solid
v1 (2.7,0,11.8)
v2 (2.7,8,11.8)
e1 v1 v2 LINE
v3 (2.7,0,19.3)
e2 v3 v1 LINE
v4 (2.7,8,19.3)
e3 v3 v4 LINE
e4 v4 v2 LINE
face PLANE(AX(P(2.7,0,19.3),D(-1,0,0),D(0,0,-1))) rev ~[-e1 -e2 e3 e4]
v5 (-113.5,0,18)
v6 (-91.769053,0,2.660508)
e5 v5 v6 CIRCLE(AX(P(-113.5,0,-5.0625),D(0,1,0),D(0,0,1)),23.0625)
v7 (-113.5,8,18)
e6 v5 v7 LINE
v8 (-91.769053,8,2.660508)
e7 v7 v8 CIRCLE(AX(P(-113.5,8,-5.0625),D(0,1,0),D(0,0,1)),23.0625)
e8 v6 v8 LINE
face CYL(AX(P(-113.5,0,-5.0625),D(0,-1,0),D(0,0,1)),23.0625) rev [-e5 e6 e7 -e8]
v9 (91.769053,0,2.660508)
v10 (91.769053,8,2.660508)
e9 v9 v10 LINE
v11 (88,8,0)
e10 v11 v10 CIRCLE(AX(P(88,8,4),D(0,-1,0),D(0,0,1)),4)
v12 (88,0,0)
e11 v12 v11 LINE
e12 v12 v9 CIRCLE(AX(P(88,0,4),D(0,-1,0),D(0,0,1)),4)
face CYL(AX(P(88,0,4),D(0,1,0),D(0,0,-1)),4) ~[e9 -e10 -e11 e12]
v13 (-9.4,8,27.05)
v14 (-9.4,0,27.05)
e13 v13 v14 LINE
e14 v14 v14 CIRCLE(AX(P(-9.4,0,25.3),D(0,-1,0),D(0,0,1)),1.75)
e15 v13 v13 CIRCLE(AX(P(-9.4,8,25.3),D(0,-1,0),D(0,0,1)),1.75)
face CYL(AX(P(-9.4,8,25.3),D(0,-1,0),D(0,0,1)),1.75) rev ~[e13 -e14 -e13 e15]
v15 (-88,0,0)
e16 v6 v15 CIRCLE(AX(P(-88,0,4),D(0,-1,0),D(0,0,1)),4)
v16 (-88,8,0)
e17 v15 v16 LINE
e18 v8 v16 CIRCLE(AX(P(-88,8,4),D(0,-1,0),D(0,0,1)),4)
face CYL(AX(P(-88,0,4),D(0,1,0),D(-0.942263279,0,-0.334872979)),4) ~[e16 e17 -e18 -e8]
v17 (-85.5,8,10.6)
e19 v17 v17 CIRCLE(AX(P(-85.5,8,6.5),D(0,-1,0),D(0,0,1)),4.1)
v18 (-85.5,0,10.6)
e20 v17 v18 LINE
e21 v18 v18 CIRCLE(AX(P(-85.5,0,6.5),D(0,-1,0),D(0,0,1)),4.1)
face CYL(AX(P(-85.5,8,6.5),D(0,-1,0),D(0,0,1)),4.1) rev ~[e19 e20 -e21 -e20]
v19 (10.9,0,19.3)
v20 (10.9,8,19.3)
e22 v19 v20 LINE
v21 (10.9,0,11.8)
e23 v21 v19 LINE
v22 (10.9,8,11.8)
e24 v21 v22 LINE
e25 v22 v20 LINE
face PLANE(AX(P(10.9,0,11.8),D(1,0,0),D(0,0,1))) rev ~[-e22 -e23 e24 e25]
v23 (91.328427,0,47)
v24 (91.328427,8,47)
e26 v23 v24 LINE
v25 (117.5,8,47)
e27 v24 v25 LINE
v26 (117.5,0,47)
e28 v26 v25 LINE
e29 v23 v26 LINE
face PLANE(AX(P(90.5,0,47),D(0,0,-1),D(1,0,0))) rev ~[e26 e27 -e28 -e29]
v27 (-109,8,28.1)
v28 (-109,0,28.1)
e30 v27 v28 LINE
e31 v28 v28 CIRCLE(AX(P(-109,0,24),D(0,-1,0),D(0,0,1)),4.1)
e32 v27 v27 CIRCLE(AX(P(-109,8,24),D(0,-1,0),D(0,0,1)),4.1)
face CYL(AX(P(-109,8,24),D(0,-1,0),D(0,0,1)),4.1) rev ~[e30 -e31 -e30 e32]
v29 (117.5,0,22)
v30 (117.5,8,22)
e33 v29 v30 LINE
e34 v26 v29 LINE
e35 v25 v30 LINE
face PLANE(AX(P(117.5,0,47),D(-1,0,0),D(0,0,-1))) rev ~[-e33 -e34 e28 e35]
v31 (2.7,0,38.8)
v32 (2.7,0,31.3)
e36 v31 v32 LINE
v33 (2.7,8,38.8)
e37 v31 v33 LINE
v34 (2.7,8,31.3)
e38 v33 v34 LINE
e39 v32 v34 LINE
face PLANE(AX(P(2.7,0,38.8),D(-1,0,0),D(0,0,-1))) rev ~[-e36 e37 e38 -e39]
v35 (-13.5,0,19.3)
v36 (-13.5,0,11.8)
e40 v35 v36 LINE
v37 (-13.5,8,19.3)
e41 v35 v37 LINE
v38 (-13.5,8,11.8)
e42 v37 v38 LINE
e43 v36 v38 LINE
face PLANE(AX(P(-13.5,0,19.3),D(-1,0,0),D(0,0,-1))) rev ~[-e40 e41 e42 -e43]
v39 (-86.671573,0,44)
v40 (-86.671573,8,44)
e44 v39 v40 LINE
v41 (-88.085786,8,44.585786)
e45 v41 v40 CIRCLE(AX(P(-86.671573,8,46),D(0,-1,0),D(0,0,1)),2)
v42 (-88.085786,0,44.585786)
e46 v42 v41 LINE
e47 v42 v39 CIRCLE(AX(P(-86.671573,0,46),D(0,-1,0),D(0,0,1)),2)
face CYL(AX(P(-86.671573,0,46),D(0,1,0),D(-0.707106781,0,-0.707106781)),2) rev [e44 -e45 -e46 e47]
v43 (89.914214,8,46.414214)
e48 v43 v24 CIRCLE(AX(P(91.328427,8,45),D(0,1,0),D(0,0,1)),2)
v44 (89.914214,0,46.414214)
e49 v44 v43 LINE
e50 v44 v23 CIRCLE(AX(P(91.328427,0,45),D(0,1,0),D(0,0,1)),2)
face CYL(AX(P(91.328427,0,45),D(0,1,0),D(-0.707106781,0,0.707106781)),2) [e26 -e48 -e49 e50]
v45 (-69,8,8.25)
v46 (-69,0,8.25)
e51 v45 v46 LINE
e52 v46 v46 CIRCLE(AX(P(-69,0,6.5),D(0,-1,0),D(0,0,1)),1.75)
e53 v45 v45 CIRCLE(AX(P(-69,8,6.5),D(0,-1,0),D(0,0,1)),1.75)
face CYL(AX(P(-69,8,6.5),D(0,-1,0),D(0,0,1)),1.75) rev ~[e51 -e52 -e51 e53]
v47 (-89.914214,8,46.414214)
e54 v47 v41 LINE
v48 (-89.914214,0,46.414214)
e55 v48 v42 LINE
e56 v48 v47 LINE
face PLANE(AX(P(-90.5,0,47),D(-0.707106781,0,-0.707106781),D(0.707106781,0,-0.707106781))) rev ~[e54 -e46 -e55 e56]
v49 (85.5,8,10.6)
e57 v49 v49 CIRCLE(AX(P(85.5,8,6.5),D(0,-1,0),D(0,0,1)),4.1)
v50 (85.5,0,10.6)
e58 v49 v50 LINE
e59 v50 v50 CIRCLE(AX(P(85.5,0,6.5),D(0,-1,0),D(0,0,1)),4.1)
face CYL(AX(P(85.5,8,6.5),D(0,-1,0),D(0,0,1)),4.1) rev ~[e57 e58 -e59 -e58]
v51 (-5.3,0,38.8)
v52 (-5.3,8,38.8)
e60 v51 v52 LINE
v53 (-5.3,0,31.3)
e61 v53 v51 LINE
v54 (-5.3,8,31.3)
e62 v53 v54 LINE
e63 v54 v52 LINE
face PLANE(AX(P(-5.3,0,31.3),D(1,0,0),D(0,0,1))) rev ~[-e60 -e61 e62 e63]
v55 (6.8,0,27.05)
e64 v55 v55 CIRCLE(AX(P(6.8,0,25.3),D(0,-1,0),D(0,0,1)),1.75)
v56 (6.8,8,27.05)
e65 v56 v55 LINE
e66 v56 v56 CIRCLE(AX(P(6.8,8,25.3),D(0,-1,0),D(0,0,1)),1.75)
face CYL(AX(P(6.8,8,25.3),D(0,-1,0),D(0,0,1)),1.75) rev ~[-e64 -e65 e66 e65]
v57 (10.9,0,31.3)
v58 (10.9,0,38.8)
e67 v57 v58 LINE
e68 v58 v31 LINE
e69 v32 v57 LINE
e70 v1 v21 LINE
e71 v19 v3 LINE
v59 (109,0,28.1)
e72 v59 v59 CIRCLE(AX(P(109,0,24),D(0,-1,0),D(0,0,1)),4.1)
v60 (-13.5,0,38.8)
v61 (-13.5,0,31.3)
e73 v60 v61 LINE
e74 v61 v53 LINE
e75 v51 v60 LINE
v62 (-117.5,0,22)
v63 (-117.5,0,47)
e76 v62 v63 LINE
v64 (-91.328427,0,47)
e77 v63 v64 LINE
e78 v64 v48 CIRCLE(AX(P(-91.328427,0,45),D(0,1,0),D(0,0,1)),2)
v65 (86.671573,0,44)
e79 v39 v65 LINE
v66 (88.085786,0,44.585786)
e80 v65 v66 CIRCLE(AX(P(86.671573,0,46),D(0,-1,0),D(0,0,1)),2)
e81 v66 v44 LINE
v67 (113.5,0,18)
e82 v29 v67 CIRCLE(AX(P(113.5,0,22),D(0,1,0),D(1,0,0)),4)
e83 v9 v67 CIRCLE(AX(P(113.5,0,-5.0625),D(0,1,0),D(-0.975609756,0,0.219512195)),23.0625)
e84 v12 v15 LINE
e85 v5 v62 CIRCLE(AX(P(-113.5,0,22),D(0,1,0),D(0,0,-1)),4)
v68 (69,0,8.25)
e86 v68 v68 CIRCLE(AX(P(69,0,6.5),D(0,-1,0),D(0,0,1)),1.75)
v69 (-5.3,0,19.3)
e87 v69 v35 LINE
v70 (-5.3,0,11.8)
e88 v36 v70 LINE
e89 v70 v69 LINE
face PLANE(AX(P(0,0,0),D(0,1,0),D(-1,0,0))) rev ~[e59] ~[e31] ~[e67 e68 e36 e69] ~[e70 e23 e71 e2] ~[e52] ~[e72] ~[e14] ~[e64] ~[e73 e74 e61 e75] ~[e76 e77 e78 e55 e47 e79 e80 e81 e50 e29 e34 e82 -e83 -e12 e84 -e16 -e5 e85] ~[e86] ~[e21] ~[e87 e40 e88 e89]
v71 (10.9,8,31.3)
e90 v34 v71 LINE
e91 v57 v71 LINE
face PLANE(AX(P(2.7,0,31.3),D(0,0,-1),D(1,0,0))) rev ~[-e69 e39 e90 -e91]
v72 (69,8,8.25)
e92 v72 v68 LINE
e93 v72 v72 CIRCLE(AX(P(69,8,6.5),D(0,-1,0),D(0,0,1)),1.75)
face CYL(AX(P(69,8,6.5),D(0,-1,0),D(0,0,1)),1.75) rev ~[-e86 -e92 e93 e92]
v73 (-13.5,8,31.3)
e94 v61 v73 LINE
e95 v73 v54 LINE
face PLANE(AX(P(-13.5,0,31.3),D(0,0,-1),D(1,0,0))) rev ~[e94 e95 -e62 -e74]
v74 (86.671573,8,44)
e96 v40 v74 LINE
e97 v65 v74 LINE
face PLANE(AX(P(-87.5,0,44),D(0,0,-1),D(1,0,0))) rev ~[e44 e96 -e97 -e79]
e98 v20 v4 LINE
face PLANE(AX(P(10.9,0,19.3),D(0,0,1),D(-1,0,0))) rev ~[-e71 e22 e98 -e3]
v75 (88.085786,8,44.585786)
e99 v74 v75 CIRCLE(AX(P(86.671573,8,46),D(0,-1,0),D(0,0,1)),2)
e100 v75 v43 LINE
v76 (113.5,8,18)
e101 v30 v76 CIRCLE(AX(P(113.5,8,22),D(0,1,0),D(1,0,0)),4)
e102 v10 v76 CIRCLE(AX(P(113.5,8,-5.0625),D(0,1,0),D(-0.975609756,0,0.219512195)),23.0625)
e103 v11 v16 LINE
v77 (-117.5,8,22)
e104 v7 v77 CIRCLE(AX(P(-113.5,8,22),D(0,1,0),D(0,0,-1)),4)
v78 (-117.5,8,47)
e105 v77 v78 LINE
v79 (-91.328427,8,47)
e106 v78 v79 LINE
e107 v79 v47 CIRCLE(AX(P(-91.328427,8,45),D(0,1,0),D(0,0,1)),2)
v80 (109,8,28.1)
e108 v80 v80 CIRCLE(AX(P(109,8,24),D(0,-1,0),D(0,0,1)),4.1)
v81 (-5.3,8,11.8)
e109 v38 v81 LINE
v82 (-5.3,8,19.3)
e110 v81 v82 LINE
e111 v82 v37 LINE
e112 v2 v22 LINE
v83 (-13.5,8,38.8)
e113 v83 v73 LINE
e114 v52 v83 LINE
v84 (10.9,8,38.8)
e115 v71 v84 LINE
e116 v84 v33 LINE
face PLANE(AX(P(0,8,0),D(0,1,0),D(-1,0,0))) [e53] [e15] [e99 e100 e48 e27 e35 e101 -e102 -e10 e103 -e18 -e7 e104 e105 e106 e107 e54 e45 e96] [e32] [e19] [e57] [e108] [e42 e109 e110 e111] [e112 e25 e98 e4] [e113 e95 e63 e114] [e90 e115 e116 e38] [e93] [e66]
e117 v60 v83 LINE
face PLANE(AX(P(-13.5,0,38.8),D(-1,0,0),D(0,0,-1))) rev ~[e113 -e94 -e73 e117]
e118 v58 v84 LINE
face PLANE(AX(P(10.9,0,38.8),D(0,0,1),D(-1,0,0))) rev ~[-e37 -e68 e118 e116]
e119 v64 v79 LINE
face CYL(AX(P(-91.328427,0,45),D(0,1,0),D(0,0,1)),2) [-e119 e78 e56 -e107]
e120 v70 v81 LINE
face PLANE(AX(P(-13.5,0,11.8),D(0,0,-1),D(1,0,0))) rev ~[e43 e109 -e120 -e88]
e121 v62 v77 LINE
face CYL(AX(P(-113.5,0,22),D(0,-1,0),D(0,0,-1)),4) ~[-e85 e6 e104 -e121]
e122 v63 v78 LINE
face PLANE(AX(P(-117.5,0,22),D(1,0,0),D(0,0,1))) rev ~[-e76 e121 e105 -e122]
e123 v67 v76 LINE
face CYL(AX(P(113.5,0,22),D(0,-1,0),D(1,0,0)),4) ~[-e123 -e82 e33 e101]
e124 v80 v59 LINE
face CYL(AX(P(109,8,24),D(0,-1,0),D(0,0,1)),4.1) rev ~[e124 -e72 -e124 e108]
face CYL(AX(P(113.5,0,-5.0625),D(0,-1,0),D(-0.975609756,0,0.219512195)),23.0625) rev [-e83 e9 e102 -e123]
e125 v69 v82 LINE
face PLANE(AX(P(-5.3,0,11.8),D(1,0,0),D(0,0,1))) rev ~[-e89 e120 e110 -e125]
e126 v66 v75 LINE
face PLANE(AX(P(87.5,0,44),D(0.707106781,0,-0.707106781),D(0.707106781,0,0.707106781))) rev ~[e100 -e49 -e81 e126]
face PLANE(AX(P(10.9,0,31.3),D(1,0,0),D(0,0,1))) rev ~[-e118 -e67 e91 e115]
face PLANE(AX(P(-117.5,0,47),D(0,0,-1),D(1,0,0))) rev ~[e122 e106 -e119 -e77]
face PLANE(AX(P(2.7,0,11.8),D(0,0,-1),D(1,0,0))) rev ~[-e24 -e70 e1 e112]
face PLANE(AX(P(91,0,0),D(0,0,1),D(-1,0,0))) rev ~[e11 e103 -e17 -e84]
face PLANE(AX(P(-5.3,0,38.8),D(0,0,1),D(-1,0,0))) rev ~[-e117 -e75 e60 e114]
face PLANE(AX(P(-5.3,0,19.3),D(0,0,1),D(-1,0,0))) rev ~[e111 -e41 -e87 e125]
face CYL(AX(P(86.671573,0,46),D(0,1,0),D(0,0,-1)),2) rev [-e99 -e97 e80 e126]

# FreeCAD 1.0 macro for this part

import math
import FreeCAD as App
import Part
import Sketcher

V = App.Vector


def edges_at(feature, points):
    """Names of the edges that pass closest to the given points."""
    edges = feature.Shape.Edges
    near = lambda p: min(range(len(edges)), key=lambda i: edges[i].distToShape(Part.Vertex(*p))[0])
    return sorted({f"Edge{near(p) + 1}" for p in points})

doc = App.newDocument("Part")
body = doc.addObject("PartDesign::Body", "Body")

# Sketch on XZ plane
sketch1 = body.newObject("Sketcher::SketchObject", "Sketch")
sketch1.AttachmentSupport = (doc.getObject("XZ_Plane"), [""])
sketch1.MapMode = "FlatFace"
sketch1.addGeometry([
    Part.LineSegment(V(90.5, 47, 0), V(117.5, 47, 0)),  # 0
    Part.LineSegment(V(117.5, 47, 0), V(117.5, 22, 0)),  # 1
    Part.ArcOfCircle(Part.Circle(V(113.5, 22, 0), V(0, 0, 1), 4), math.radians(-90), math.radians(0)),  # 2
    Part.ArcOfCircle(Part.Circle(V(113.5, -5.1, 0), V(0, 0, 1), 23.1), math.radians(90), math.radians(167)),  # 3
    Part.LineSegment(V(91, 0, 0), V(-91, 0, 0)),  # 4
    Part.ArcOfCircle(Part.Circle(V(-113.5, -5.1, 0), V(0, 0, 1), 23.1), math.radians(13), math.radians(90)),  # 5
    Part.ArcOfCircle(Part.Circle(V(-113.5, 22, 0), V(0, 0, 1), 4), math.radians(180), math.radians(270)),  # 6
    Part.LineSegment(V(-117.5, 22, 0), V(-117.5, 47, 0)),  # 7
    Part.LineSegment(V(-117.5, 47, 0), V(-90.5, 47, 0)),  # 8
    Part.LineSegment(V(-90.5, 47, 0), V(-87.5, 44, 0)),  # 9
    Part.LineSegment(V(-87.5, 44, 0), V(87.5, 44, 0)),  # 10
    Part.LineSegment(V(87.5, 44, 0), V(90.5, 47, 0)),  # 11
    Part.LineSegment(V(2.7, 19.3, 0), V(2.7, 11.8, 0)),  # 12
    Part.LineSegment(V(2.7, 11.8, 0), V(10.9, 11.8, 0)),  # 13
    Part.LineSegment(V(10.9, 11.8, 0), V(10.9, 19.3, 0)),  # 14
    Part.LineSegment(V(10.9, 19.3, 0), V(2.7, 19.3, 0)),  # 15
    Part.LineSegment(V(-13.5, 19.3, 0), V(-13.5, 11.8, 0)),  # 16
    Part.LineSegment(V(-13.5, 11.8, 0), V(-5.3, 11.8, 0)),  # 17
    Part.LineSegment(V(-5.3, 11.8, 0), V(-5.3, 19.3, 0)),  # 18
    Part.LineSegment(V(-5.3, 19.3, 0), V(-13.5, 19.3, 0)),  # 19
    Part.LineSegment(V(2.7, 38.8, 0), V(2.7, 31.3, 0)),  # 20
    Part.LineSegment(V(2.7, 31.3, 0), V(10.9, 31.3, 0)),  # 21
    Part.LineSegment(V(10.9, 31.3, 0), V(10.9, 38.8, 0)),  # 22
    Part.LineSegment(V(10.9, 38.8, 0), V(2.7, 38.8, 0)),  # 23
    Part.LineSegment(V(-13.5, 38.8, 0), V(-13.5, 31.3, 0)),  # 24
    Part.LineSegment(V(-13.5, 31.3, 0), V(-5.3, 31.3, 0)),  # 25
    Part.LineSegment(V(-5.3, 31.3, 0), V(-5.3, 38.8, 0)),  # 26
    Part.LineSegment(V(-5.3, 38.8, 0), V(-13.5, 38.8, 0)),  # 27
], False)
sketch1.addConstraint([
    Sketcher.Constraint("Coincident", 0, 2, 1, 1),
    Sketcher.Constraint("Tangent", 1, 2, 2, 2),
    Sketcher.Constraint("Tangent", 2, 1, 3, 1),
    Sketcher.Constraint("Coincident", 3, 2, 4, 1),
    Sketcher.Constraint("Coincident", 4, 2, 5, 1),
    Sketcher.Constraint("Tangent", 5, 2, 6, 2),
    Sketcher.Constraint("Tangent", 6, 1, 7, 1),
    Sketcher.Constraint("Coincident", 7, 2, 8, 1),
    Sketcher.Constraint("Coincident", 8, 2, 9, 1),
    Sketcher.Constraint("Coincident", 9, 2, 10, 1),
    Sketcher.Constraint("Coincident", 10, 2, 11, 1),
    Sketcher.Constraint("Coincident", 11, 2, 0, 1),
    Sketcher.Constraint("Coincident", 12, 2, 13, 1),
    Sketcher.Constraint("Coincident", 13, 2, 14, 1),
    Sketcher.Constraint("Coincident", 14, 2, 15, 1),
    Sketcher.Constraint("Coincident", 15, 2, 12, 1),
    Sketcher.Constraint("Coincident", 16, 2, 17, 1),
    Sketcher.Constraint("Coincident", 17, 2, 18, 1),
    Sketcher.Constraint("Coincident", 18, 2, 19, 1),
    Sketcher.Constraint("Coincident", 19, 2, 16, 1),
    Sketcher.Constraint("Coincident", 20, 2, 21, 1),
    Sketcher.Constraint("Coincident", 21, 2, 22, 1),
    Sketcher.Constraint("Coincident", 22, 2, 23, 1),
    Sketcher.Constraint("Coincident", 23, 2, 20, 1),
    Sketcher.Constraint("Coincident", 24, 2, 25, 1),
    Sketcher.Constraint("Coincident", 25, 2, 26, 1),
    Sketcher.Constraint("Coincident", 26, 2, 27, 1),
    Sketcher.Constraint("Coincident", 27, 2, 24, 1),
    Sketcher.Constraint("Horizontal", 0),
    Sketcher.Constraint("Vertical", 1),
    Sketcher.Constraint("Horizontal", 4),
    Sketcher.Constraint("Vertical", 7),
    Sketcher.Constraint("Horizontal", 8),
    Sketcher.Constraint("Horizontal", 10),
    Sketcher.Constraint("Vertical", 12),
    Sketcher.Constraint("Horizontal", 13),
    Sketcher.Constraint("Vertical", 14),
    Sketcher.Constraint("Horizontal", 15),
    Sketcher.Constraint("Vertical", 16),
    Sketcher.Constraint("Horizontal", 17),
    Sketcher.Constraint("Vertical", 18),
    Sketcher.Constraint("Horizontal", 19),
    Sketcher.Constraint("Vertical", 20),
    Sketcher.Constraint("Horizontal", 21),
    Sketcher.Constraint("Vertical", 22),
    Sketcher.Constraint("Horizontal", 23),
    Sketcher.Constraint("Vertical", 24),
    Sketcher.Constraint("Horizontal", 25),
    Sketcher.Constraint("Vertical", 26),
    Sketcher.Constraint("Horizontal", 27),
    Sketcher.Constraint("Equal", 3, 5),
    Sketcher.Constraint("Equal", 2, 6),
    Sketcher.Constraint("Symmetric", 3, 2, 4, 2, -1, 1),
    Sketcher.Constraint("Symmetric", 2, 3, 6, 3, -2),
    Sketcher.Constraint("Symmetric", 8, 2, 11, 2, -2),
    Sketcher.Constraint("Perpendicular", 9, 11),
    Sketcher.Constraint("Horizontal", 13, 2, 16, 2),
    Sketcher.Constraint("Horizontal", 15, 2, 18, 2),
    Sketcher.Constraint("Horizontal", 21, 2, 24, 2),
    Sketcher.Constraint("Horizontal", 23, 2, 26, 2),
    Sketcher.Constraint("Vertical", 2, 3, 3, 3),
    Sketcher.Constraint("Vertical", 15, 2, 20, 2),
    Sketcher.Constraint("Vertical", 14, 2, 21, 2),
    Sketcher.Constraint("Vertical", 19, 2, 24, 2),
    Sketcher.Constraint("Vertical", 18, 2, 25, 2),
    Sketcher.Constraint("Equal", 15, 17),
    Sketcher.Constraint("Equal", 18, 20),
    Sketcher.Constraint("Equal", 9, 11),
    Sketcher.Constraint("Radius", 2, 4.0),
    Sketcher.Constraint("DistanceX", 0, 1, 0, 2, 27.0),
    Sketcher.Constraint("DistanceX", 4, 2, 4, 1, 182.0),
    Sketcher.Constraint("DistanceX", 13, 1, 13, 2, 8.2),
    Sketcher.Constraint("DistanceY", 12, 2, 12, 1, 7.5),
    Sketcher.Constraint("DistanceY", -1, 1, 0, 2, 47.0),
    Sketcher.Constraint("DistanceY", 2, 1, 0, 2, 29.0),
    Sketcher.Constraint("DistanceX", 8, 2, 9, 2, 3.0),
    Sketcher.Constraint("DistanceX", 17, 2, 12, 2, 8.0),
    Sketcher.Constraint("DistanceY", 15, 2, 20, 2, 12.0),
    Sketcher.Constraint("DistanceY", -1, 1, 12, 2, 11.8),
    Sketcher.Constraint("Radius", 3, 23.0625),
    Sketcher.Constraint("DistanceX", -1, 1, 12, 2, 2.7),
])
pad1 = body.newObject("PartDesign::Pad", "Pad")
pad1.Profile = sketch1
pad1.Length = 8
pad1.Reversed = True
doc.recompute()

fillet = body.newObject("PartDesign::Fillet", "Fillet")
fillet.Base = (pad1, edges_at(pad1, [(-91, 4, 0), (91, 4, 0)]))
fillet.Radius = 4
doc.recompute()

fillet2 = body.newObject("PartDesign::Fillet", "Fillet001")
fillet2.Base = (fillet, edges_at(fillet, [
    (-90.5, 4, 47),
    (-87.5, 4, 44),
    (87.5, 4, 44),
    (90.5, 4, 47),
]))
fillet2.Radius = 2

# Sketch on XZ plane
sketch2 = body.newObject("Sketcher::SketchObject", "Sketch001")
sketch2.AttachmentSupport = (doc.getObject("XZ_Plane"), [""])
sketch2.MapMode = "FlatFace"
sketch2.AttachmentOffset = App.Placement(V(0, 0, -8), App.Rotation())
sketch2.addGeometry([
    Part.Circle(V(-9.4, 25.3, 0), V(0, 0, 1), 1.8),
    Part.Circle(V(6.8, 25.3, 0), V(0, 0, 1), 1.8),
    Part.Circle(V(-69, 6.5, 0), V(0, 0, 1), 1.8),
    Part.Circle(V(69, 6.5, 0), V(0, 0, 1), 1.8),
], False)
sketch2.addConstraint([
    Sketcher.Constraint("Equal", 0, 1),
    Sketcher.Constraint("Equal", 1, 2),
    Sketcher.Constraint("Equal", 2, 3),
    Sketcher.Constraint("Symmetric", 2, 3, 3, 3, -2),
    Sketcher.Constraint("Horizontal", 0, 3, 1, 3),
    Sketcher.Constraint("Diameter", 0, 3.5),
    Sketcher.Constraint("DistanceX", 2, 3, -1, 1, 69.0),
    Sketcher.Constraint("DistanceX", 0, 3, -1, 1, 9.4),
    Sketcher.Constraint("DistanceY", -1, 1, 0, 3, 25.3),
    Sketcher.Constraint("DistanceX", -1, 1, 1, 3, 6.8),
    Sketcher.Constraint("DistanceY", -1, 1, 2, 3, 6.5),
])
doc.recompute()
hole = body.newObject("PartDesign::Hole", "Hole")
hole.Profile = sketch2
hole.ThreadType = "None"
hole.Diameter = 3.5
hole.DepthType = "ThroughAll"
hole.Reversed = True

# Sketch on XZ plane
sketch3 = body.newObject("Sketcher::SketchObject", "Sketch002")
sketch3.AttachmentSupport = (doc.getObject("XZ_Plane"), [""])
sketch3.MapMode = "FlatFace"
sketch3.AttachmentOffset = App.Placement(V(0, 0, -8), App.Rotation())
sketch3.addGeometry([
    Part.Circle(V(-109, 24, 0), V(0, 0, 1), 4.1),
    Part.Circle(V(-85.5, 6.5, 0), V(0, 0, 1), 4.1),
    Part.Circle(V(85.5, 6.5, 0), V(0, 0, 1), 4.1),
    Part.Circle(V(109, 24, 0), V(0, 0, 1), 4.1),
], False)
sketch3.addConstraint([
    Sketcher.Constraint("Equal", 0, 1),
    Sketcher.Constraint("Equal", 1, 2),
    Sketcher.Constraint("Equal", 2, 3),
    Sketcher.Constraint("Symmetric", 1, 3, 2, 3, -2),
    Sketcher.Constraint("Symmetric", 0, 3, 3, 3, -2),
    Sketcher.Constraint("Diameter", 0, 8.2),
    Sketcher.Constraint("DistanceX", 0, 3, -1, 1, 109.0),
    Sketcher.Constraint("DistanceY", -1, 1, 0, 3, 24.0),
    Sketcher.Constraint("DistanceX", 1, 3, 2, 3, 171.0),
    Sketcher.Constraint("DistanceY", -1, 1, 1, 3, 6.5),
])
doc.recompute()
hole2 = body.newObject("PartDesign::Hole", "Hole001")
hole2.Profile = sketch3
hole2.ThreadType = "None"
hole2.Diameter = 8.2
hole2.DepthType = "ThroughAll"
hole2.Reversed = True

doc.recompute()
